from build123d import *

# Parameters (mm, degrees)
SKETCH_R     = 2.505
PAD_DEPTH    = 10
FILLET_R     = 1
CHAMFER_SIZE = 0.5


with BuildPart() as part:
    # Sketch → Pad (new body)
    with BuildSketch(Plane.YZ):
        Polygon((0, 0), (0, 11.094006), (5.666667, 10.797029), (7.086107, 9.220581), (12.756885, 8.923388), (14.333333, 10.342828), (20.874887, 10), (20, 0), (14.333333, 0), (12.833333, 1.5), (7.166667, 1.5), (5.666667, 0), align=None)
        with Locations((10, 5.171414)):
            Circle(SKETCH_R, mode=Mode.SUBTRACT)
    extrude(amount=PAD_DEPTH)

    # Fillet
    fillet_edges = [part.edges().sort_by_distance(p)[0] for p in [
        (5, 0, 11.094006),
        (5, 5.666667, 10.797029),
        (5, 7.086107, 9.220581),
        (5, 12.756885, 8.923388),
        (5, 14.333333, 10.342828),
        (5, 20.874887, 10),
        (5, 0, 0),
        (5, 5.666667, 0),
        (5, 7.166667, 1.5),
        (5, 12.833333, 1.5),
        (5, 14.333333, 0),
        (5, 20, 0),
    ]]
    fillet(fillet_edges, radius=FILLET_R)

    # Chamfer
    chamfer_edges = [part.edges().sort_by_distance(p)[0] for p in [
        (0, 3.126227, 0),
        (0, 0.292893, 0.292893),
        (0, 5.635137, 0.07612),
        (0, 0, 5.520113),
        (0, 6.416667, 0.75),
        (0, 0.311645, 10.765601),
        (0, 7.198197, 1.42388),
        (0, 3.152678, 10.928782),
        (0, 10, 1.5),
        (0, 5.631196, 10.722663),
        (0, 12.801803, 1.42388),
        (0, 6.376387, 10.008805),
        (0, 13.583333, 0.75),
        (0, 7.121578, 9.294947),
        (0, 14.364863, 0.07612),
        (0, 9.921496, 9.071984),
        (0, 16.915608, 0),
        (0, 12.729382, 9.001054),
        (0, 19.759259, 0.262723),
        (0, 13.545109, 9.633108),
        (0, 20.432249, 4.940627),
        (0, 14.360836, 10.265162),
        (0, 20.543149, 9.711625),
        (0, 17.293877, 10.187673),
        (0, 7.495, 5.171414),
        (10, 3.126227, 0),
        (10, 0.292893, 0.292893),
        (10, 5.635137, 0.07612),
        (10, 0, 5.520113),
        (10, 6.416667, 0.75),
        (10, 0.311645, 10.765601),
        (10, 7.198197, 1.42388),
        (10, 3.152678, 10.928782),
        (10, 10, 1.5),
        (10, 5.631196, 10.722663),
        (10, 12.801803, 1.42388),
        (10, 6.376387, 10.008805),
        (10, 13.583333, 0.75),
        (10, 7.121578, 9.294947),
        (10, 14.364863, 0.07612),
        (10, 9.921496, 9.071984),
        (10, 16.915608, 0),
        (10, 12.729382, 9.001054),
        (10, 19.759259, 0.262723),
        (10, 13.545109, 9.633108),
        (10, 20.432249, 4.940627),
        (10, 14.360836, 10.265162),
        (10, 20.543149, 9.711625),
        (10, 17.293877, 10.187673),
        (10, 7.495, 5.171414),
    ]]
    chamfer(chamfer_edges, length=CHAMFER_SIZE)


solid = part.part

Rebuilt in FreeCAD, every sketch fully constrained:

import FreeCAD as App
import Part
import Sketcher

V = App.Vector
Q = App.Units.Quantity


def edges_at(feature, points):
    """Names of the edges that pass closest to the given points."""
    edges = feature.Shape.Edges
    near = lambda p: min(range(len(edges)), key=lambda i: edges[i].distToShape(Part.Vertex(*p))[0])
    return sorted({f"Edge{near(p) + 1}" for p in points})


def add_polygon(sketch, points):
    """Adds a closed chain of lines whose ends are joined by coincident constraints."""
    first, n = sketch.GeometryCount, len(points)
    for a, b in zip(points, points[1:] + points[:1]):
        sketch.addGeometry(Part.LineSegment(App.Vector(*a, 0), App.Vector(*b, 0)), False)
    for i in range(n):
        sketch.addConstraint(Sketcher.Constraint("Coincident", first + i, 2, first + (i + 1) % n, 1))

doc = App.newDocument("Part")
body = doc.addObject("PartDesign::Body", "Body")

sketch1 = doc.addObject("Sketcher::SketchObject", "Sketch")
body.addObject(sketch1)
sketch1.AttachmentSupport = (doc.YZ_Plane, [""])
sketch1.MapMode = "FlatFace"
add_polygon(sketch1, [(0, 11.1), (0, 0), (5.7, 0), (7.2, 1.5), (12.8, 1.5), (14.3, 0), (20, 0), (20.9, 10), (14.3, 10.3), (12.8, 8.9), (7.1, 9.2), (5.7, 10.8)])
sketch1.addGeometry(Part.Circle(V(10, 5.2, 0), V(0, 0, 1), 2.5), False)
sketch1.addConstraint([
    Sketcher.Constraint("Vertical", 0),
    Sketcher.Constraint("Horizontal", 1),
    Sketcher.Constraint("Horizontal", 3),
    Sketcher.Constraint("Horizontal", 5),
    Sketcher.Constraint("Coincident", 0, 2, -1, 1),
    Sketcher.Constraint("PointOnObject", 4, 2, -1),
    Sketcher.Constraint("Perpendicular", 2, 4),
    Sketcher.Constraint("Parallel", 7, 9),
    Sketcher.Constraint("Perpendicular", 8, 10),
    Sketcher.Constraint("Parallel", 9, 11),
    Sketcher.Constraint("Vertical", 4, 2, 7, 2),
    Sketcher.Constraint("Vertical", 1, 2, 10, 2),
    Sketcher.Constraint("Equal", 1, 3),
    Sketcher.Constraint("Equal", 3, 5),
    Sketcher.Constraint("Equal", 2, 4),
    Sketcher.Constraint("Equal", 4, 8),
    Sketcher.Constraint("Equal", 8, 10),
    Sketcher.Constraint("Diameter", 12, Q("5.01 mm")),
    Sketcher.Constraint("Angle", 6, Q("84.999998 deg")),
    Sketcher.Constraint("Angle", 7, Q("177.000003 deg")),
    Sketcher.Constraint("Angle", 8, Q("-138.000003 deg")),
    Sketcher.Constraint("DistanceX", -1, 1, 12, 3, Q("10 mm")),
    Sketcher.Constraint("DistanceX", -1, 1, 5, 2, Q("20 mm")),
    Sketcher.Constraint("DistanceY", -1, 1, 6, 2, Q("10 mm")),
    Sketcher.Constraint("DistanceY", -1, 1, 2, 2, Q("1.5 mm")),
    Sketcher.Constraint("DistanceY", -1, 1, 12, 3, Q("5.171414 mm")),
])
pad1 = doc.addObject("PartDesign::Pad", "Pad")
body.addObject(pad1)
pad1.Profile = sketch1
pad1.Length = 10
doc.recompute()

fillet = doc.addObject("PartDesign::Fillet", "Fillet")
body.addObject(fillet)
fillet.Base = (pad1, edges_at(pad1, [
    (5, 0, 11.094),
    (5, 5.667, 10.797),
    (5, 7.086, 9.221),
    (5, 12.757, 8.923),
    (5, 14.333, 10.343),
    (5, 20.875, 10),
    (5, 0, 0),
    (5, 5.667, 0),
    (5, 7.167, 1.5),
    (5, 12.833, 1.5),
    (5, 14.333, 0),
    (5, 20, 0),
]))
fillet.Radius = 1
doc.recompute()

chamfer = doc.addObject("PartDesign::Chamfer", "Chamfer")
body.addObject(chamfer)
chamfer.Base = (fillet, edges_at(fillet, [
    (0, 3.126, 0),
    (0, 0.293, 0.293),
    (0, 5.635, 0.076),
    (0, 0, 5.52),
    (0, 6.417, 0.75),
    (0, 0.312, 10.766),
    (0, 7.198, 1.424),
    (0, 3.153, 10.929),
    (0, 10, 1.5),
    (0, 5.631, 10.723),
    (0, 12.802, 1.424),
    (0, 6.376, 10.009),
    (0, 13.583, 0.75),
    (0, 7.122, 9.295),
    (0, 14.365, 0.076),
    (0, 9.921, 9.072),
    (0, 16.916, 0),
    (0, 12.729, 9.001),
    (0, 19.759, 0.263),
    (0, 13.545, 9.633),
    (0, 20.432, 4.941),
    (0, 14.361, 10.265),
    (0, 20.543, 9.712),
    (0, 17.294, 10.188),
    (0, 7.495, 5.171),
    (10, 3.126, 0),
    (10, 0.293, 0.293),
    (10, 5.635, 0.076),
    (10, 0, 5.52),
    (10, 6.417, 0.75),
    (10, 0.312, 10.766),
    (10, 7.198, 1.424),
    (10, 3.153, 10.929),
    (10, 10, 1.5),
    (10, 5.631, 10.723),
    (10, 12.802, 1.424),
    (10, 6.376, 10.009),
    (10, 13.583, 0.75),
    (10, 7.122, 9.295),
    (10, 14.365, 0.076),
    (10, 9.921, 9.072),
    (10, 16.916, 0),
    (10, 12.729, 9.001),
    (10, 19.759, 0.263),
    (10, 13.545, 9.633),
    (10, 20.432, 4.941),
    (10, 14.361, 10.265),
    (10, 20.543, 9.712),
    (10, 17.294, 10.188),
    (10, 7.495, 5.171),
]))
chamfer.Size = 0.5

doc.recompute()
